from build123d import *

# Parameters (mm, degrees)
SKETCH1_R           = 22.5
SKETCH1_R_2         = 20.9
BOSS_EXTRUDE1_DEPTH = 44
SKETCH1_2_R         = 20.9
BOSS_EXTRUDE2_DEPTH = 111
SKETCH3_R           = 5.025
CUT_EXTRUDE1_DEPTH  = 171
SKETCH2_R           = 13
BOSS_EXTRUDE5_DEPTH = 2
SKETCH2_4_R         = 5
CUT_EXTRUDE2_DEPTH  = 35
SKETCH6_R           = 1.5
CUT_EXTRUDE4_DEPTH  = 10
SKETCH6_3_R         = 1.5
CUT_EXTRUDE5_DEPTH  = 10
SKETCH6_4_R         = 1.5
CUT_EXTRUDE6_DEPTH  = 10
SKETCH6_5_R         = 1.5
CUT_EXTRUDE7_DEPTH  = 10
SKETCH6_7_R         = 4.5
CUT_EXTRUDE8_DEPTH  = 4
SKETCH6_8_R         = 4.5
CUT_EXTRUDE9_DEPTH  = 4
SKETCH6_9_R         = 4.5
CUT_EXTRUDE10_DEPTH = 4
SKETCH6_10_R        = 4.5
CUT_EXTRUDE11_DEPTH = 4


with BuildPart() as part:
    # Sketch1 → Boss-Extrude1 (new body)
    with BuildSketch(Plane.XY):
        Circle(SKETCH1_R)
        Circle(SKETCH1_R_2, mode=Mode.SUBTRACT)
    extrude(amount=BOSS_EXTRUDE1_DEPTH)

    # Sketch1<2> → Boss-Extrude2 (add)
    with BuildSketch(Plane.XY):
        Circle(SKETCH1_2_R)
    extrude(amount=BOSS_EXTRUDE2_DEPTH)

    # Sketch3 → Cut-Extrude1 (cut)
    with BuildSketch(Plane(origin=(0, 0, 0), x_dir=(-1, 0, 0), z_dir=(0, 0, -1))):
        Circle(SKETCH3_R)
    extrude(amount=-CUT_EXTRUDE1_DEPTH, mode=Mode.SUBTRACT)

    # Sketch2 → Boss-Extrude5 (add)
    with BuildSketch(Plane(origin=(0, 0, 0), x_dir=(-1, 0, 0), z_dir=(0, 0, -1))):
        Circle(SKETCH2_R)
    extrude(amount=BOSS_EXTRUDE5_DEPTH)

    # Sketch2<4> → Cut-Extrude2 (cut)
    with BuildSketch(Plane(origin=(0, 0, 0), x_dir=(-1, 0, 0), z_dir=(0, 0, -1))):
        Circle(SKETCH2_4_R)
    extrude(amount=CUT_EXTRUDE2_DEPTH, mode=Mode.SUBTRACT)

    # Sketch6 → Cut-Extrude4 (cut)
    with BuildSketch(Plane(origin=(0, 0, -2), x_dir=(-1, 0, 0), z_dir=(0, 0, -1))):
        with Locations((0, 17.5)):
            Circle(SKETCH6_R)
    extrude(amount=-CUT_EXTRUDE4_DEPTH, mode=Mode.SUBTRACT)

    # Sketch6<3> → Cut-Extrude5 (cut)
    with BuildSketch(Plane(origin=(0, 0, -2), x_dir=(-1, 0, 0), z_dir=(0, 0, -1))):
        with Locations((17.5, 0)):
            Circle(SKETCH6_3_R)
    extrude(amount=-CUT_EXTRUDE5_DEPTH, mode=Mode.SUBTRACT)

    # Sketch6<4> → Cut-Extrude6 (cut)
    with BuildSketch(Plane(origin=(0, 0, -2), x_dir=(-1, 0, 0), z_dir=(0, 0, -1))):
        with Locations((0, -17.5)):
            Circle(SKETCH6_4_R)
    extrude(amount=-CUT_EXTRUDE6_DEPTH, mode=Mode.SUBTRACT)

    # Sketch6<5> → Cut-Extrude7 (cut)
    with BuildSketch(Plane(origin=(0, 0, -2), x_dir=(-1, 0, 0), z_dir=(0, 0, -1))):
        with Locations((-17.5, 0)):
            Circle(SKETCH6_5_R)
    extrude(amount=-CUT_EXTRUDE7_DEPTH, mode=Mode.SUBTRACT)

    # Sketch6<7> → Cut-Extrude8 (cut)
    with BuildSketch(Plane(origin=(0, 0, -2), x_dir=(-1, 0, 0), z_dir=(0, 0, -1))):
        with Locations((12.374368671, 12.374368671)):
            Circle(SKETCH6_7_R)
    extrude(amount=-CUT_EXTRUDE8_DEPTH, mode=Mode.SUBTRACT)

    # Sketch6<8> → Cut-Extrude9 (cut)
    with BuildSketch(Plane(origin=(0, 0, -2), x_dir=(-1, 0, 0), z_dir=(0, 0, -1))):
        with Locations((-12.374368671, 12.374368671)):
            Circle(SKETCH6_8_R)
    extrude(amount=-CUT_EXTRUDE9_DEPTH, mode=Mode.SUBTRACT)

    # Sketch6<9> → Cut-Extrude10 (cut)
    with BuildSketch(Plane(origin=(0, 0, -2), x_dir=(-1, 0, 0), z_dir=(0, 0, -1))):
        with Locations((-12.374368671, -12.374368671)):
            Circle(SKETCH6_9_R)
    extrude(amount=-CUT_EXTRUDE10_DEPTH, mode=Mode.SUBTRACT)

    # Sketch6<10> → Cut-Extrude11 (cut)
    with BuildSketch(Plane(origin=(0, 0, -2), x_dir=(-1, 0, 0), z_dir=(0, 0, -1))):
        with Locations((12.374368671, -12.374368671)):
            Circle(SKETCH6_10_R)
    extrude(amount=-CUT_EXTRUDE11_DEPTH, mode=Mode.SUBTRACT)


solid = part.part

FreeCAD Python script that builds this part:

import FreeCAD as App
import Part
import Sketcher

V = App.Vector

doc = App.newDocument("Part")
params = doc.addObject("Spreadsheet::Sheet", "Params")
for row, (alias, value) in enumerate([
    ("sketch1_diameter", "45 mm"),
    ("sketch1_diameter2", "41.8 mm"),
    ("pad1_length", "44 mm"),
    ("sketch2_diameter", "41.8 mm"),
    ("pad2_length", "111 mm"),
    ("sketch3_diameter", "10.05 mm"),
    ("pocket1_length", "171 mm"),
    ("sketch4_diameter", "26 mm"),
    ("pad3_length", "2 mm"),
    ("sketch5_diameter", "10 mm"),
    ("pocket2_length", "35 mm"),
    ("sketch6_diameter", "3 mm"),
    ("pocket3_length", "10 mm"),
    ("sketch7_diameter", "3 mm"),
    ("pocket4_length", "10 mm"),
    ("sketch8_diameter", "3 mm"),
    ("pocket5_length", "10 mm"),
    ("sketch9_diameter", "3 mm"),
    ("pocket6_length", "10 mm"),
    ("sketch10_diameter", "9 mm"),
    ("pocket7_length", "4 mm"),
    ("sketch11_diameter", "9 mm"),
    ("pocket8_length", "4 mm"),
    ("sketch12_diameter", "9 mm"),
    ("pocket9_length", "4 mm"),
    ("sketch13_diameter", "9 mm"),
    ("pocket10_length", "4 mm"),
], start=1):
    params.set(f"A{row}", alias)
    params.set(f"B{row}", "=" + value)
    params.setAlias(f"B{row}", alias)

body = doc.addObject("PartDesign::Body", "Body")

# Sketch on XY plane
sketch1 = body.newObject("Sketcher::SketchObject", "Sketch")
sketch1.AttachmentSupport = (doc.getObject("XY_Plane"), [""])
sketch1.MapMode = "FlatFace"
sketch1.addGeometry([
    Part.Circle(V(0, 0, 0), V(0, 0, 1), 22),
    Part.Circle(V(0, 0, 0), V(0, 0, 1), 21),
], False)
sketch1.addConstraint([
    Sketcher.Constraint("Coincident", 0, 3, -1, 1),
    Sketcher.Constraint("Coincident", 1, 3, -1, 1),
    Sketcher.Constraint("Diameter", 0, 45.0),
    Sketcher.Constraint("Diameter", 1, 41.8),
])
sketch1.setExpression("Constraints[2]", "Params.sketch1_diameter")
sketch1.setExpression("Constraints[3]", "Params.sketch1_diameter2")
pad1 = body.newObject("PartDesign::Pad", "Pad")
pad1.Profile = sketch1
pad1.setExpression("Length", "Params.pad1_length")

# Sketch on XY plane
sketch2 = body.newObject("Sketcher::SketchObject", "Sketch001")
sketch2.AttachmentSupport = (doc.getObject("XY_Plane"), [""])
sketch2.MapMode = "FlatFace"
sketch2.addGeometry(Part.Circle(V(0, 0, 0), V(0, 0, 1), 21), False)
sketch2.addConstraint([
    Sketcher.Constraint("Coincident", 0, 3, -1, 1),
    Sketcher.Constraint("Diameter", 0, 41.8),
])
sketch2.setExpression("Constraints[1]", "Params.sketch2_diameter")
pad2 = body.newObject("PartDesign::Pad", "Pad001")
pad2.Profile = sketch2
pad2.setExpression("Length", "Params.pad2_length")

# Sketch on XY plane
sketch3 = body.newObject("Sketcher::SketchObject", "Sketch002")
sketch3.AttachmentSupport = (doc.getObject("XY_Plane"), [""])
sketch3.MapMode = "FlatFace"
sketch3.addGeometry(Part.Circle(V(0, 0, 0), V(0, 0, 1), 5), False)
sketch3.addConstraint([
    Sketcher.Constraint("Coincident", 0, 3, -1, 1),
    Sketcher.Constraint("Diameter", 0, 10.05),
])
sketch3.setExpression("Constraints[1]", "Params.sketch3_diameter")
pocket1 = body.newObject("PartDesign::Pocket", "Pocket")
pocket1.Profile = sketch3
pocket1.setExpression("Length", "Params.pocket1_length")
pocket1.Reversed = True

# Sketch on XY plane
sketch4 = body.newObject("Sketcher::SketchObject", "Sketch003")
sketch4.AttachmentSupport = (doc.getObject("XY_Plane"), [""])
sketch4.MapMode = "FlatFace"
sketch4.addGeometry(Part.Circle(V(0, 0, 0), V(0, 0, 1), 13), False)
sketch4.addConstraint([
    Sketcher.Constraint("Coincident", 0, 3, -1, 1),
    Sketcher.Constraint("Diameter", 0, 26.0),
])
sketch4.setExpression("Constraints[1]", "Params.sketch4_diameter")
pad3 = body.newObject("PartDesign::Pad", "Pad002")
pad3.Profile = sketch4
pad3.setExpression("Length", "Params.pad3_length")
pad3.Reversed = True

# Sketch on XY plane
sketch5 = body.newObject("Sketcher::SketchObject", "Sketch004")
sketch5.AttachmentSupport = (doc.getObject("XY_Plane"), [""])
sketch5.MapMode = "FlatFace"
sketch5.addGeometry(Part.Circle(V(0, 0, 0), V(0, 0, 1), 5), False)
sketch5.addConstraint([
    Sketcher.Constraint("Coincident", 0, 3, -1, 1),
    Sketcher.Constraint("Diameter", 0, 10.0),
])
sketch5.setExpression("Constraints[1]", "Params.sketch5_diameter")
pocket2 = body.newObject("PartDesign::Pocket", "Pocket001")
pocket2.Profile = sketch5
pocket2.setExpression("Length", "Params.pocket2_length")

# Sketch on XY plane
sketch6 = body.newObject("Sketcher::SketchObject", "Sketch005")
sketch6.AttachmentSupport = (doc.getObject("XY_Plane"), [""])
sketch6.MapMode = "FlatFace"
sketch6.AttachmentOffset = App.Placement(V(0, 0, -2), App.Rotation())
sketch6.addGeometry(Part.Circle(V(0, 17.5, 0), V(0, 0, 1), 1.5), False)
sketch6.addConstraint([
    Sketcher.Constraint("PointOnObject", 0, 3, -2),
    Sketcher.Constraint("Diameter", 0, 3.0),
    Sketcher.Constraint("DistanceY", -1, 1, 0, 3, 17.5),
])
sketch6.setExpression("Constraints[1]", "Params.sketch6_diameter")
pocket3 = body.newObject("PartDesign::Pocket", "Pocket002")
pocket3.Profile = sketch6
pocket3.setExpression("Length", "Params.pocket3_length")
pocket3.Reversed = True

# Sketch on XY plane
sketch7 = body.newObject("Sketcher::SketchObject", "Sketch006")
sketch7.AttachmentSupport = (doc.getObject("XY_Plane"), [""])
sketch7.MapMode = "FlatFace"
sketch7.AttachmentOffset = App.Placement(V(0, 0, -2), App.Rotation())
sketch7.addGeometry(Part.Circle(V(-17.5, 0, 0), V(0, 0, 1), 1.5), False)
sketch7.addConstraint([
    Sketcher.Constraint("PointOnObject", 0, 3, -1),
    Sketcher.Constraint("Diameter", 0, 3.0),
    Sketcher.Constraint("DistanceX", 0, 3, -1, 1, 17.5),
])
sketch7.setExpression("Constraints[1]", "Params.sketch7_diameter")
pocket4 = body.newObject("PartDesign::Pocket", "Pocket003")
pocket4.Profile = sketch7
pocket4.setExpression("Length", "Params.pocket4_length")
pocket4.Reversed = True

# Sketch on XY plane
sketch8 = body.newObject("Sketcher::SketchObject", "Sketch007")
sketch8.AttachmentSupport = (doc.getObject("XY_Plane"), [""])
sketch8.MapMode = "FlatFace"
sketch8.AttachmentOffset = App.Placement(V(0, 0, -2), App.Rotation())
sketch8.addGeometry(Part.Circle(V(0, -17.5, 0), V(0, 0, 1), 1.5), False)
sketch8.addConstraint([
    Sketcher.Constraint("PointOnObject", 0, 3, -2),
    Sketcher.Constraint("Diameter", 0, 3.0),
    Sketcher.Constraint("DistanceY", 0, 3, -1, 1, 17.5),
])
sketch8.setExpression("Constraints[1]", "Params.sketch8_diameter")
pocket5 = body.newObject("PartDesign::Pocket", "Pocket004")
pocket5.Profile = sketch8
pocket5.setExpression("Length", "Params.pocket5_length")
pocket5.Reversed = True

# Sketch on XY plane
sketch9 = body.newObject("Sketcher::SketchObject", "Sketch008")
sketch9.AttachmentSupport = (doc.getObject("XY_Plane"), [""])
sketch9.MapMode = "FlatFace"
sketch9.AttachmentOffset = App.Placement(V(0, 0, -2), App.Rotation())
sketch9.addGeometry(Part.Circle(V(17.5, 0, 0), V(0, 0, 1), 1.5), False)
sketch9.addConstraint([
    Sketcher.Constraint("PointOnObject", 0, 3, -1),
    Sketcher.Constraint("Diameter", 0, 3.0),
    Sketcher.Constraint("DistanceX", -1, 1, 0, 3, 17.5),
])
sketch9.setExpression("Constraints[1]", "Params.sketch9_diameter")
pocket6 = body.newObject("PartDesign::Pocket", "Pocket005")
pocket6.Profile = sketch9
pocket6.setExpression("Length", "Params.pocket6_length")
pocket6.Reversed = True

# Sketch on XY plane
sketch10 = body.newObject("Sketcher::SketchObject", "Sketch009")
sketch10.AttachmentSupport = (doc.getObject("XY_Plane"), [""])
sketch10.MapMode = "FlatFace"
sketch10.AttachmentOffset = App.Placement(V(0, 0, -2), App.Rotation())
sketch10.addGeometry(Part.Circle(V(-12.4, 12.4, 0), V(0, 0, 1), 4.5), False)
sketch10.addConstraint([
    Sketcher.Constraint("Diameter", 0, 9.0),
    Sketcher.Constraint("DistanceX", 0, 3, -1, 1, 12.374369),
    Sketcher.Constraint("DistanceY", -1, 1, 0, 3, 12.374369),
])
sketch10.setExpression("Constraints[0]", "Params.sketch10_diameter")
pocket7 = body.newObject("PartDesign::Pocket", "Pocket006")
pocket7.Profile = sketch10
pocket7.setExpression("Length", "Params.pocket7_length")
pocket7.Reversed = True

# Sketch on XY plane
sketch11 = body.newObject("Sketcher::SketchObject", "Sketch010")
sketch11.AttachmentSupport = (doc.getObject("XY_Plane"), [""])
sketch11.MapMode = "FlatFace"
sketch11.AttachmentOffset = App.Placement(V(0, 0, -2), App.Rotation())
sketch11.addGeometry(Part.Circle(V(12.4, 12.4, 0), V(0, 0, 1), 4.5), False)
sketch11.addConstraint([
    Sketcher.Constraint("Diameter", 0, 9.0),
    Sketcher.Constraint("DistanceX", -1, 1, 0, 3, 12.374369),
    Sketcher.Constraint("DistanceY", -1, 1, 0, 3, 12.374369),
])
sketch11.setExpression("Constraints[0]", "Params.sketch11_diameter")
pocket8 = body.newObject("PartDesign::Pocket", "Pocket007")
pocket8.Profile = sketch11
pocket8.setExpression("Length", "Params.pocket8_length")
pocket8.Reversed = True

# Sketch on XY plane
sketch12 = body.newObject("Sketcher::SketchObject", "Sketch011")
sketch12.AttachmentSupport = (doc.getObject("XY_Plane"), [""])
sketch12.MapMode = "FlatFace"
sketch12.AttachmentOffset = App.Placement(V(0, 0, -2), App.Rotation())
sketch12.addGeometry(Part.Circle(V(12.4, -12.4, 0), V(0, 0, 1), 4.5), False)
sketch12.addConstraint([
    Sketcher.Constraint("Diameter", 0, 9.0),
    Sketcher.Constraint("DistanceX", -1, 1, 0, 3, 12.374369),
    Sketcher.Constraint("DistanceY", 0, 3, -1, 1, 12.374369),
])
sketch12.setExpression("Constraints[0]", "Params.sketch12_diameter")
pocket9 = body.newObject("PartDesign::Pocket", "Pocket008")
pocket9.Profile = sketch12
pocket9.setExpression("Length", "Params.pocket9_length")
pocket9.Reversed = True

# Sketch on XY plane
sketch13 = body.newObject("Sketcher::SketchObject", "Sketch012")
sketch13.AttachmentSupport = (doc.getObject("XY_Plane"), [""])
sketch13.MapMode = "FlatFace"
sketch13.AttachmentOffset = App.Placement(V(0, 0, -2), App.Rotation())
sketch13.addGeometry(Part.Circle(V(-12.4, -12.4, 0), V(0, 0, 1), 4.5), False)
sketch13.addConstraint([
    Sketcher.Constraint("Diameter", 0, 9.0),
    Sketcher.Constraint("DistanceX", 0, 3, -1, 1, 12.374369),
    Sketcher.Constraint("DistanceY", 0, 3, -1, 1, 12.374369),
])
sketch13.setExpression("Constraints[0]", "Params.sketch13_diameter")
pocket10 = body.newObject("PartDesign::Pocket", "Pocket009")
pocket10.Profile = sketch13
pocket10.setExpression("Length", "Params.pocket10_length")
pocket10.Reversed = True

doc.recompute()
